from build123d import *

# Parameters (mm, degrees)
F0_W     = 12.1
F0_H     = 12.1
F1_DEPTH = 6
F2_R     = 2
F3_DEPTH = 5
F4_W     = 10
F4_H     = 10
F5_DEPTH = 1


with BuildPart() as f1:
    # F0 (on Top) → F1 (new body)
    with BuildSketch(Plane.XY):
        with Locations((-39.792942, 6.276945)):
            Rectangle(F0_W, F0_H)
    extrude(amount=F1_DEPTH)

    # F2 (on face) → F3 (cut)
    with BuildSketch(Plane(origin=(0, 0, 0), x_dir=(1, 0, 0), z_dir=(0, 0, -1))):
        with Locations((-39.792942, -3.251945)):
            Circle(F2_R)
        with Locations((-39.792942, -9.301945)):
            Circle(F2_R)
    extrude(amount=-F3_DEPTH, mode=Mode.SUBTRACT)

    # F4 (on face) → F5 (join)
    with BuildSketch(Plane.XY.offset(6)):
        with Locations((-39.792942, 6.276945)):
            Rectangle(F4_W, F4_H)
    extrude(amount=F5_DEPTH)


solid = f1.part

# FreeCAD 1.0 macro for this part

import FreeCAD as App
import Part
import Sketcher
Q = App.Units.Quantity


def add_polygon(sketch, points):
    """Adds a closed chain of lines whose ends are joined by coincident constraints."""
    first, n = sketch.GeometryCount, len(points)
    for a, b in zip(points, points[1:] + points[:1]):
        sketch.addGeometry(Part.LineSegment(App.Vector(*a, 0), App.Vector(*b, 0)), False)
    for i in range(n):
        sketch.addConstraint(Sketcher.Constraint("Coincident", first + i, 2, first + (i + 1) % n, 1))

doc = App.newDocument("Part")
params = doc.addObject("Spreadsheet::Sheet", "Params")
for row, (alias, value) in enumerate([
    ("sketch1_width", "12.1 mm"),
    ("pad1_length", "6 mm"),
    ("sketch2_diameter", "4 mm"),
    ("pocket1_length", "5 mm"),
    ("sketch3_width", "10 mm"),
    ("pad2_length", "1 mm"),
], start=1):
    params.set(f"A{row}", alias)
    params.set(f"B{row}", "=" + value)
    params.setAlias(f"B{row}", alias)

body = doc.addObject("PartDesign::Body", "Body")

sketch1 = body.newObject("Sketcher::SketchObject", "Sketch")
sketch1.AttachmentSupport = (doc.getObject("XY_Plane"), [""])
sketch1.MapMode = "FlatFace"
add_polygon(sketch1, [(-45.842942, 12.326945), (-45.842942, 0.226945), (-33.742942, 0.226945), (-33.742942, 12.326945)])
sketch1.addConstraint([
    Sketcher.Constraint("Vertical", 0),
    Sketcher.Constraint("Horizontal", 1),
    Sketcher.Constraint("Vertical", 2),
    Sketcher.Constraint("Horizontal", 3),
    Sketcher.Constraint("Equal", 3, 0),
    Sketcher.Constraint("DistanceX", 1, 1, 1, 2, Q("12.1 mm")),
    Sketcher.Constraint("DistanceX", 0, 2, -1, 1, Q("45.842942 mm")),
    Sketcher.Constraint("DistanceY", -1, 1, 0, 2, Q("0.226945 mm")),
])
sketch1.setExpression("Constraints[9]", "Params.sketch1_width")
pad1 = body.newObject("PartDesign::Pad", "Pad")
pad1.Profile = sketch1
pad1.setExpression("Length", "Params.pad1_length")

sketch2 = body.newObject("Sketcher::SketchObject", "Sketch001")
sketch2.AttachmentSupport = (doc.getObject("XY_Plane"), [""])
sketch2.MapMode = "FlatFace"
sketch2.addGeometry([
    Part.Circle(App.Vector(-39.792942, 3.251945, 0), App.Vector(0, 0, 1), 2),
    Part.Circle(App.Vector(-39.792942, 9.301945, 0), App.Vector(0, 0, 1), 2),
], False)
sketch2.addConstraint([
    Sketcher.Constraint("Equal", 0, 1),
    Sketcher.Constraint("Vertical", 0, 3, 1, 3),
    Sketcher.Constraint("Diameter", 0, Q("4 mm")),
    Sketcher.Constraint("DistanceY", 0, 3, 1, 3, Q("6.05 mm")),
    Sketcher.Constraint("DistanceX", 0, 3, -1, 1, Q("39.792942 mm")),
    Sketcher.Constraint("DistanceY", -1, 1, 0, 3, Q("3.251945 mm")),
])
sketch2.setExpression("Constraints[2]", "Params.sketch2_diameter")
pocket1 = body.newObject("PartDesign::Pocket", "Pocket")
pocket1.Profile = sketch2
pocket1.setExpression("Length", "Params.pocket1_length")
pocket1.Reversed = True

sketch3 = body.newObject("Sketcher::SketchObject", "Sketch002")
sketch3.AttachmentSupport = (doc.getObject("XY_Plane"), [""])
sketch3.MapMode = "FlatFace"
sketch3.AttachmentOffset = App.Placement(App.Vector(0, 0, 6), App.Rotation())
add_polygon(sketch3, [(-44.792942, 11.276945), (-44.792942, 1.276945), (-34.792942, 1.276945), (-34.792942, 11.276945)])
sketch3.addConstraint([
    Sketcher.Constraint("Vertical", 0),
    Sketcher.Constraint("Horizontal", 1),
    Sketcher.Constraint("Vertical", 2),
    Sketcher.Constraint("Horizontal", 3),
    Sketcher.Constraint("Equal", 3, 0),
    Sketcher.Constraint("DistanceX", 1, 1, 1, 2, Q("10 mm")),
    Sketcher.Constraint("DistanceX", 0, 2, -1, 1, Q("44.792942 mm")),
    Sketcher.Constraint("DistanceY", -1, 1, 0, 2, Q("1.276945 mm")),
])
sketch3.setExpression("Constraints[9]", "Params.sketch3_width")
pad2 = body.newObject("PartDesign::Pad", "Pad001")
pad2.Profile = sketch3
pad2.setExpression("Length", "Params.pad2_length")

doc.recompute()
